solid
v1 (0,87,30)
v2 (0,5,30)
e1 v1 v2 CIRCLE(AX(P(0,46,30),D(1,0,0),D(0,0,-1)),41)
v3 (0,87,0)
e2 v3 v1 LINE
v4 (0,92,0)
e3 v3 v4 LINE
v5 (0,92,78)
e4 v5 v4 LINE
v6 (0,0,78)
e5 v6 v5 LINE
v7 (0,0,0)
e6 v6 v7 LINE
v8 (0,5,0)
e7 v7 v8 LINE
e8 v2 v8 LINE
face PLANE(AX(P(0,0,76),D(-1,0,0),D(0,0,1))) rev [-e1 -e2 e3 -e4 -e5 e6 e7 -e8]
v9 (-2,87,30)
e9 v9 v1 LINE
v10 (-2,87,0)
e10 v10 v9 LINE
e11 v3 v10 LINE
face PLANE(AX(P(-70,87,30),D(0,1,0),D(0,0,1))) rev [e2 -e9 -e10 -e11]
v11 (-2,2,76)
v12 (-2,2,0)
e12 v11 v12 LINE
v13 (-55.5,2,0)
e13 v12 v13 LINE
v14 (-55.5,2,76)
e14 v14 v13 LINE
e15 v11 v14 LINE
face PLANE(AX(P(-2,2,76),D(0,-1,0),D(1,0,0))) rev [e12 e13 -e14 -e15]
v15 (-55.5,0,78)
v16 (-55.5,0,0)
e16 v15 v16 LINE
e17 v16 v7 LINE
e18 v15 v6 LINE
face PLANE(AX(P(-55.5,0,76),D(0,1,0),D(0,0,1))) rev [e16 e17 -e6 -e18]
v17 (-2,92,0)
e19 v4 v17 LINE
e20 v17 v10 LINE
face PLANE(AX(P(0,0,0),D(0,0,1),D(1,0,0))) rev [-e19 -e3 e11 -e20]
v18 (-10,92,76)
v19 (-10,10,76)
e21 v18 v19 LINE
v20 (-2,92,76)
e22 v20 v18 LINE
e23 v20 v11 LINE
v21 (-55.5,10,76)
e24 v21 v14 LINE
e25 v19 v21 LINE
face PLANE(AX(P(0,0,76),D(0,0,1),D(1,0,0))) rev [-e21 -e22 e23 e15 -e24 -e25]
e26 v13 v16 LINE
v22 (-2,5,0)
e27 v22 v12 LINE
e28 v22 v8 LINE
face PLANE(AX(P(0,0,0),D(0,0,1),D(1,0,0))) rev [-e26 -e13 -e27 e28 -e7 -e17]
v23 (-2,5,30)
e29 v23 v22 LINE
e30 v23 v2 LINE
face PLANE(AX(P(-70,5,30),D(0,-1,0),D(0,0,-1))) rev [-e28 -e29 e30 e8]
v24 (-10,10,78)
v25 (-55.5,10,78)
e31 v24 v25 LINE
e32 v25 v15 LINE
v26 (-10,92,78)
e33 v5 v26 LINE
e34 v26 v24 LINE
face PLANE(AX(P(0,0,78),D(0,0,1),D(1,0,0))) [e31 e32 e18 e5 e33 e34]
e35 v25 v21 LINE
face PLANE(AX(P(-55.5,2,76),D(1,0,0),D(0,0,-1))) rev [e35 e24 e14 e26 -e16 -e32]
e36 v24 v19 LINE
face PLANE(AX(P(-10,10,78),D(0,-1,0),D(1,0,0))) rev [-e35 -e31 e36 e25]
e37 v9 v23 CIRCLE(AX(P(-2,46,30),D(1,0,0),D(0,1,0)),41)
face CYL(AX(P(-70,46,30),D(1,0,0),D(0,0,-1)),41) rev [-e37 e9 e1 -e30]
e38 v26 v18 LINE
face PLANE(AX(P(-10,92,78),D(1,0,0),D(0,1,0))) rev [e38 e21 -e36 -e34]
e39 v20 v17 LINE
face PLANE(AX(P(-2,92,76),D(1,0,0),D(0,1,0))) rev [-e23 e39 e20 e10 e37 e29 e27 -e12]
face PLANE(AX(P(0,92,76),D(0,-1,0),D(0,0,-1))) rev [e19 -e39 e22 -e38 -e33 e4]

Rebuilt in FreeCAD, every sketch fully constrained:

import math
import FreeCAD as App
import Part
import Sketcher
from FreeCAD import Vector


def add_polygon(sketch, points):
    """Adds a closed chain of lines whose ends are joined by coincident constraints."""
    first, n = sketch.GeometryCount, len(points)
    for a, b in zip(points, points[1:] + points[:1]):
        sketch.addGeometry(Part.LineSegment(App.Vector(*a, 0), App.Vector(*b, 0)), False)
    for i in range(n):
        sketch.addConstraint(Sketcher.Constraint("Coincident", first + i, 2, first + (i + 1) % n, 1))

doc = App.newDocument("Part")
body = doc.addObject("PartDesign::Body", "Body")

# Sketch on XY plane
sketch1 = body.newObject("Sketcher::SketchObject", "Sketch")
sketch1.AttachmentSupport = (doc.getObject("XY_Plane"), [""])
sketch1.MapMode = "FlatFace"
add_polygon(sketch1, [(-55.5, 0), (0, 0), (0, 92), (-2, 92), (-2, 2), (-55.5, 2)])  # lines 0-5
sketch1.addConstraint([
    Sketcher.Constraint("Horizontal", 0),
    Sketcher.Constraint("Vertical", 1),
    Sketcher.Constraint("Horizontal", 2),
    Sketcher.Constraint("Vertical", 3),
    Sketcher.Constraint("Horizontal", 4),
    Sketcher.Constraint("Vertical", 5),
    Sketcher.Constraint("Coincident", 0, 2, -1, 1),
    Sketcher.Constraint("Equal", 2, 5),
    Sketcher.Constraint("DistanceX", 2, 2, 2, 1, 2.0),
    Sketcher.Constraint("DistanceY", 1, 1, 1, 2, 92.0),
    Sketcher.Constraint("DistanceX", 0, 1, 0, 2, 55.5),
])
pad1 = body.newObject("PartDesign::Pad", "Pad")
pad1.Profile = sketch1
pad1.Length = 76

# Sketch on YZ plane
sketch2 = body.newObject("Sketcher::SketchObject", "Sketch001")
sketch2.AttachmentSupport = (doc.getObject("YZ_Plane"), [""])
sketch2.MapMode = "FlatFace"
sketch2.addGeometry([
    Part.LineSegment(Vector(5, 30, 0), Vector(5, 0, 0)),
    Part.LineSegment(Vector(5, 0, 0), Vector(87, 0, 0)),
    Part.LineSegment(Vector(87, 0, 0), Vector(87, 30, 0)),
    Part.ArcOfCircle(Part.Circle(Vector(46, 30, 0), Vector(0, 0, 1), 41), math.radians(0), math.radians(180)),
], False)
sketch2.addConstraint([
    Sketcher.Constraint("Coincident", 0, 2, 1, 1),
    Sketcher.Constraint("Coincident", 1, 2, 2, 1),
    Sketcher.Constraint("Tangent", 2, 2, 3, 1),
    Sketcher.Constraint("Tangent", 3, 2, 0, 1),
    Sketcher.Constraint("Vertical", 0),
    Sketcher.Constraint("Horizontal", 1),
    Sketcher.Constraint("Vertical", 2),
    Sketcher.Constraint("PointOnObject", 0, 2, -1),
    Sketcher.Constraint("Radius", 3, 41.0),
    Sketcher.Constraint("DistanceY", 0, 2, 0, 1, 30.0),
    Sketcher.Constraint("DistanceX", -1, 1, 3, 3, 46.0),
])
pocket1 = body.newObject("PartDesign::Pocket", "Pocket")
pocket1.Profile = sketch2
pocket1.Length = 70

# Sketch on XY plane
sketch3 = body.newObject("Sketcher::SketchObject", "Sketch002")
sketch3.AttachmentSupport = (doc.getObject("XY_Plane"), [""])
sketch3.MapMode = "FlatFace"
sketch3.AttachmentOffset = App.Placement(Vector(0, 0, 76), App.Rotation())
add_polygon(sketch3, [(0, 92), (-10, 92), (-10, 10), (-56, 10), (-56, 0), (0, 0)])  # lines 0-5
sketch3.addConstraint([
    Sketcher.Constraint("Horizontal", 0),
    Sketcher.Constraint("Vertical", 1),
    Sketcher.Constraint("Horizontal", 2),
    Sketcher.Constraint("Vertical", 3),
    Sketcher.Constraint("Horizontal", 4),
    Sketcher.Constraint("Vertical", 5),
    Sketcher.Constraint("Coincident", 4, 2, -1, 1),
    Sketcher.Constraint("Equal", 0, 3),
    Sketcher.Constraint("DistanceX", 0, 2, 0, 1, 10.0),
    Sketcher.Constraint("DistanceY", 1, 2, 1, 1, 82.0),
    Sketcher.Constraint("DistanceX", 2, 2, 2, 1, 45.5),
])
pad2 = body.newObject("PartDesign::Pad", "Pad001")
pad2.Profile = sketch3
pad2.Length = 2

doc.recompute()
